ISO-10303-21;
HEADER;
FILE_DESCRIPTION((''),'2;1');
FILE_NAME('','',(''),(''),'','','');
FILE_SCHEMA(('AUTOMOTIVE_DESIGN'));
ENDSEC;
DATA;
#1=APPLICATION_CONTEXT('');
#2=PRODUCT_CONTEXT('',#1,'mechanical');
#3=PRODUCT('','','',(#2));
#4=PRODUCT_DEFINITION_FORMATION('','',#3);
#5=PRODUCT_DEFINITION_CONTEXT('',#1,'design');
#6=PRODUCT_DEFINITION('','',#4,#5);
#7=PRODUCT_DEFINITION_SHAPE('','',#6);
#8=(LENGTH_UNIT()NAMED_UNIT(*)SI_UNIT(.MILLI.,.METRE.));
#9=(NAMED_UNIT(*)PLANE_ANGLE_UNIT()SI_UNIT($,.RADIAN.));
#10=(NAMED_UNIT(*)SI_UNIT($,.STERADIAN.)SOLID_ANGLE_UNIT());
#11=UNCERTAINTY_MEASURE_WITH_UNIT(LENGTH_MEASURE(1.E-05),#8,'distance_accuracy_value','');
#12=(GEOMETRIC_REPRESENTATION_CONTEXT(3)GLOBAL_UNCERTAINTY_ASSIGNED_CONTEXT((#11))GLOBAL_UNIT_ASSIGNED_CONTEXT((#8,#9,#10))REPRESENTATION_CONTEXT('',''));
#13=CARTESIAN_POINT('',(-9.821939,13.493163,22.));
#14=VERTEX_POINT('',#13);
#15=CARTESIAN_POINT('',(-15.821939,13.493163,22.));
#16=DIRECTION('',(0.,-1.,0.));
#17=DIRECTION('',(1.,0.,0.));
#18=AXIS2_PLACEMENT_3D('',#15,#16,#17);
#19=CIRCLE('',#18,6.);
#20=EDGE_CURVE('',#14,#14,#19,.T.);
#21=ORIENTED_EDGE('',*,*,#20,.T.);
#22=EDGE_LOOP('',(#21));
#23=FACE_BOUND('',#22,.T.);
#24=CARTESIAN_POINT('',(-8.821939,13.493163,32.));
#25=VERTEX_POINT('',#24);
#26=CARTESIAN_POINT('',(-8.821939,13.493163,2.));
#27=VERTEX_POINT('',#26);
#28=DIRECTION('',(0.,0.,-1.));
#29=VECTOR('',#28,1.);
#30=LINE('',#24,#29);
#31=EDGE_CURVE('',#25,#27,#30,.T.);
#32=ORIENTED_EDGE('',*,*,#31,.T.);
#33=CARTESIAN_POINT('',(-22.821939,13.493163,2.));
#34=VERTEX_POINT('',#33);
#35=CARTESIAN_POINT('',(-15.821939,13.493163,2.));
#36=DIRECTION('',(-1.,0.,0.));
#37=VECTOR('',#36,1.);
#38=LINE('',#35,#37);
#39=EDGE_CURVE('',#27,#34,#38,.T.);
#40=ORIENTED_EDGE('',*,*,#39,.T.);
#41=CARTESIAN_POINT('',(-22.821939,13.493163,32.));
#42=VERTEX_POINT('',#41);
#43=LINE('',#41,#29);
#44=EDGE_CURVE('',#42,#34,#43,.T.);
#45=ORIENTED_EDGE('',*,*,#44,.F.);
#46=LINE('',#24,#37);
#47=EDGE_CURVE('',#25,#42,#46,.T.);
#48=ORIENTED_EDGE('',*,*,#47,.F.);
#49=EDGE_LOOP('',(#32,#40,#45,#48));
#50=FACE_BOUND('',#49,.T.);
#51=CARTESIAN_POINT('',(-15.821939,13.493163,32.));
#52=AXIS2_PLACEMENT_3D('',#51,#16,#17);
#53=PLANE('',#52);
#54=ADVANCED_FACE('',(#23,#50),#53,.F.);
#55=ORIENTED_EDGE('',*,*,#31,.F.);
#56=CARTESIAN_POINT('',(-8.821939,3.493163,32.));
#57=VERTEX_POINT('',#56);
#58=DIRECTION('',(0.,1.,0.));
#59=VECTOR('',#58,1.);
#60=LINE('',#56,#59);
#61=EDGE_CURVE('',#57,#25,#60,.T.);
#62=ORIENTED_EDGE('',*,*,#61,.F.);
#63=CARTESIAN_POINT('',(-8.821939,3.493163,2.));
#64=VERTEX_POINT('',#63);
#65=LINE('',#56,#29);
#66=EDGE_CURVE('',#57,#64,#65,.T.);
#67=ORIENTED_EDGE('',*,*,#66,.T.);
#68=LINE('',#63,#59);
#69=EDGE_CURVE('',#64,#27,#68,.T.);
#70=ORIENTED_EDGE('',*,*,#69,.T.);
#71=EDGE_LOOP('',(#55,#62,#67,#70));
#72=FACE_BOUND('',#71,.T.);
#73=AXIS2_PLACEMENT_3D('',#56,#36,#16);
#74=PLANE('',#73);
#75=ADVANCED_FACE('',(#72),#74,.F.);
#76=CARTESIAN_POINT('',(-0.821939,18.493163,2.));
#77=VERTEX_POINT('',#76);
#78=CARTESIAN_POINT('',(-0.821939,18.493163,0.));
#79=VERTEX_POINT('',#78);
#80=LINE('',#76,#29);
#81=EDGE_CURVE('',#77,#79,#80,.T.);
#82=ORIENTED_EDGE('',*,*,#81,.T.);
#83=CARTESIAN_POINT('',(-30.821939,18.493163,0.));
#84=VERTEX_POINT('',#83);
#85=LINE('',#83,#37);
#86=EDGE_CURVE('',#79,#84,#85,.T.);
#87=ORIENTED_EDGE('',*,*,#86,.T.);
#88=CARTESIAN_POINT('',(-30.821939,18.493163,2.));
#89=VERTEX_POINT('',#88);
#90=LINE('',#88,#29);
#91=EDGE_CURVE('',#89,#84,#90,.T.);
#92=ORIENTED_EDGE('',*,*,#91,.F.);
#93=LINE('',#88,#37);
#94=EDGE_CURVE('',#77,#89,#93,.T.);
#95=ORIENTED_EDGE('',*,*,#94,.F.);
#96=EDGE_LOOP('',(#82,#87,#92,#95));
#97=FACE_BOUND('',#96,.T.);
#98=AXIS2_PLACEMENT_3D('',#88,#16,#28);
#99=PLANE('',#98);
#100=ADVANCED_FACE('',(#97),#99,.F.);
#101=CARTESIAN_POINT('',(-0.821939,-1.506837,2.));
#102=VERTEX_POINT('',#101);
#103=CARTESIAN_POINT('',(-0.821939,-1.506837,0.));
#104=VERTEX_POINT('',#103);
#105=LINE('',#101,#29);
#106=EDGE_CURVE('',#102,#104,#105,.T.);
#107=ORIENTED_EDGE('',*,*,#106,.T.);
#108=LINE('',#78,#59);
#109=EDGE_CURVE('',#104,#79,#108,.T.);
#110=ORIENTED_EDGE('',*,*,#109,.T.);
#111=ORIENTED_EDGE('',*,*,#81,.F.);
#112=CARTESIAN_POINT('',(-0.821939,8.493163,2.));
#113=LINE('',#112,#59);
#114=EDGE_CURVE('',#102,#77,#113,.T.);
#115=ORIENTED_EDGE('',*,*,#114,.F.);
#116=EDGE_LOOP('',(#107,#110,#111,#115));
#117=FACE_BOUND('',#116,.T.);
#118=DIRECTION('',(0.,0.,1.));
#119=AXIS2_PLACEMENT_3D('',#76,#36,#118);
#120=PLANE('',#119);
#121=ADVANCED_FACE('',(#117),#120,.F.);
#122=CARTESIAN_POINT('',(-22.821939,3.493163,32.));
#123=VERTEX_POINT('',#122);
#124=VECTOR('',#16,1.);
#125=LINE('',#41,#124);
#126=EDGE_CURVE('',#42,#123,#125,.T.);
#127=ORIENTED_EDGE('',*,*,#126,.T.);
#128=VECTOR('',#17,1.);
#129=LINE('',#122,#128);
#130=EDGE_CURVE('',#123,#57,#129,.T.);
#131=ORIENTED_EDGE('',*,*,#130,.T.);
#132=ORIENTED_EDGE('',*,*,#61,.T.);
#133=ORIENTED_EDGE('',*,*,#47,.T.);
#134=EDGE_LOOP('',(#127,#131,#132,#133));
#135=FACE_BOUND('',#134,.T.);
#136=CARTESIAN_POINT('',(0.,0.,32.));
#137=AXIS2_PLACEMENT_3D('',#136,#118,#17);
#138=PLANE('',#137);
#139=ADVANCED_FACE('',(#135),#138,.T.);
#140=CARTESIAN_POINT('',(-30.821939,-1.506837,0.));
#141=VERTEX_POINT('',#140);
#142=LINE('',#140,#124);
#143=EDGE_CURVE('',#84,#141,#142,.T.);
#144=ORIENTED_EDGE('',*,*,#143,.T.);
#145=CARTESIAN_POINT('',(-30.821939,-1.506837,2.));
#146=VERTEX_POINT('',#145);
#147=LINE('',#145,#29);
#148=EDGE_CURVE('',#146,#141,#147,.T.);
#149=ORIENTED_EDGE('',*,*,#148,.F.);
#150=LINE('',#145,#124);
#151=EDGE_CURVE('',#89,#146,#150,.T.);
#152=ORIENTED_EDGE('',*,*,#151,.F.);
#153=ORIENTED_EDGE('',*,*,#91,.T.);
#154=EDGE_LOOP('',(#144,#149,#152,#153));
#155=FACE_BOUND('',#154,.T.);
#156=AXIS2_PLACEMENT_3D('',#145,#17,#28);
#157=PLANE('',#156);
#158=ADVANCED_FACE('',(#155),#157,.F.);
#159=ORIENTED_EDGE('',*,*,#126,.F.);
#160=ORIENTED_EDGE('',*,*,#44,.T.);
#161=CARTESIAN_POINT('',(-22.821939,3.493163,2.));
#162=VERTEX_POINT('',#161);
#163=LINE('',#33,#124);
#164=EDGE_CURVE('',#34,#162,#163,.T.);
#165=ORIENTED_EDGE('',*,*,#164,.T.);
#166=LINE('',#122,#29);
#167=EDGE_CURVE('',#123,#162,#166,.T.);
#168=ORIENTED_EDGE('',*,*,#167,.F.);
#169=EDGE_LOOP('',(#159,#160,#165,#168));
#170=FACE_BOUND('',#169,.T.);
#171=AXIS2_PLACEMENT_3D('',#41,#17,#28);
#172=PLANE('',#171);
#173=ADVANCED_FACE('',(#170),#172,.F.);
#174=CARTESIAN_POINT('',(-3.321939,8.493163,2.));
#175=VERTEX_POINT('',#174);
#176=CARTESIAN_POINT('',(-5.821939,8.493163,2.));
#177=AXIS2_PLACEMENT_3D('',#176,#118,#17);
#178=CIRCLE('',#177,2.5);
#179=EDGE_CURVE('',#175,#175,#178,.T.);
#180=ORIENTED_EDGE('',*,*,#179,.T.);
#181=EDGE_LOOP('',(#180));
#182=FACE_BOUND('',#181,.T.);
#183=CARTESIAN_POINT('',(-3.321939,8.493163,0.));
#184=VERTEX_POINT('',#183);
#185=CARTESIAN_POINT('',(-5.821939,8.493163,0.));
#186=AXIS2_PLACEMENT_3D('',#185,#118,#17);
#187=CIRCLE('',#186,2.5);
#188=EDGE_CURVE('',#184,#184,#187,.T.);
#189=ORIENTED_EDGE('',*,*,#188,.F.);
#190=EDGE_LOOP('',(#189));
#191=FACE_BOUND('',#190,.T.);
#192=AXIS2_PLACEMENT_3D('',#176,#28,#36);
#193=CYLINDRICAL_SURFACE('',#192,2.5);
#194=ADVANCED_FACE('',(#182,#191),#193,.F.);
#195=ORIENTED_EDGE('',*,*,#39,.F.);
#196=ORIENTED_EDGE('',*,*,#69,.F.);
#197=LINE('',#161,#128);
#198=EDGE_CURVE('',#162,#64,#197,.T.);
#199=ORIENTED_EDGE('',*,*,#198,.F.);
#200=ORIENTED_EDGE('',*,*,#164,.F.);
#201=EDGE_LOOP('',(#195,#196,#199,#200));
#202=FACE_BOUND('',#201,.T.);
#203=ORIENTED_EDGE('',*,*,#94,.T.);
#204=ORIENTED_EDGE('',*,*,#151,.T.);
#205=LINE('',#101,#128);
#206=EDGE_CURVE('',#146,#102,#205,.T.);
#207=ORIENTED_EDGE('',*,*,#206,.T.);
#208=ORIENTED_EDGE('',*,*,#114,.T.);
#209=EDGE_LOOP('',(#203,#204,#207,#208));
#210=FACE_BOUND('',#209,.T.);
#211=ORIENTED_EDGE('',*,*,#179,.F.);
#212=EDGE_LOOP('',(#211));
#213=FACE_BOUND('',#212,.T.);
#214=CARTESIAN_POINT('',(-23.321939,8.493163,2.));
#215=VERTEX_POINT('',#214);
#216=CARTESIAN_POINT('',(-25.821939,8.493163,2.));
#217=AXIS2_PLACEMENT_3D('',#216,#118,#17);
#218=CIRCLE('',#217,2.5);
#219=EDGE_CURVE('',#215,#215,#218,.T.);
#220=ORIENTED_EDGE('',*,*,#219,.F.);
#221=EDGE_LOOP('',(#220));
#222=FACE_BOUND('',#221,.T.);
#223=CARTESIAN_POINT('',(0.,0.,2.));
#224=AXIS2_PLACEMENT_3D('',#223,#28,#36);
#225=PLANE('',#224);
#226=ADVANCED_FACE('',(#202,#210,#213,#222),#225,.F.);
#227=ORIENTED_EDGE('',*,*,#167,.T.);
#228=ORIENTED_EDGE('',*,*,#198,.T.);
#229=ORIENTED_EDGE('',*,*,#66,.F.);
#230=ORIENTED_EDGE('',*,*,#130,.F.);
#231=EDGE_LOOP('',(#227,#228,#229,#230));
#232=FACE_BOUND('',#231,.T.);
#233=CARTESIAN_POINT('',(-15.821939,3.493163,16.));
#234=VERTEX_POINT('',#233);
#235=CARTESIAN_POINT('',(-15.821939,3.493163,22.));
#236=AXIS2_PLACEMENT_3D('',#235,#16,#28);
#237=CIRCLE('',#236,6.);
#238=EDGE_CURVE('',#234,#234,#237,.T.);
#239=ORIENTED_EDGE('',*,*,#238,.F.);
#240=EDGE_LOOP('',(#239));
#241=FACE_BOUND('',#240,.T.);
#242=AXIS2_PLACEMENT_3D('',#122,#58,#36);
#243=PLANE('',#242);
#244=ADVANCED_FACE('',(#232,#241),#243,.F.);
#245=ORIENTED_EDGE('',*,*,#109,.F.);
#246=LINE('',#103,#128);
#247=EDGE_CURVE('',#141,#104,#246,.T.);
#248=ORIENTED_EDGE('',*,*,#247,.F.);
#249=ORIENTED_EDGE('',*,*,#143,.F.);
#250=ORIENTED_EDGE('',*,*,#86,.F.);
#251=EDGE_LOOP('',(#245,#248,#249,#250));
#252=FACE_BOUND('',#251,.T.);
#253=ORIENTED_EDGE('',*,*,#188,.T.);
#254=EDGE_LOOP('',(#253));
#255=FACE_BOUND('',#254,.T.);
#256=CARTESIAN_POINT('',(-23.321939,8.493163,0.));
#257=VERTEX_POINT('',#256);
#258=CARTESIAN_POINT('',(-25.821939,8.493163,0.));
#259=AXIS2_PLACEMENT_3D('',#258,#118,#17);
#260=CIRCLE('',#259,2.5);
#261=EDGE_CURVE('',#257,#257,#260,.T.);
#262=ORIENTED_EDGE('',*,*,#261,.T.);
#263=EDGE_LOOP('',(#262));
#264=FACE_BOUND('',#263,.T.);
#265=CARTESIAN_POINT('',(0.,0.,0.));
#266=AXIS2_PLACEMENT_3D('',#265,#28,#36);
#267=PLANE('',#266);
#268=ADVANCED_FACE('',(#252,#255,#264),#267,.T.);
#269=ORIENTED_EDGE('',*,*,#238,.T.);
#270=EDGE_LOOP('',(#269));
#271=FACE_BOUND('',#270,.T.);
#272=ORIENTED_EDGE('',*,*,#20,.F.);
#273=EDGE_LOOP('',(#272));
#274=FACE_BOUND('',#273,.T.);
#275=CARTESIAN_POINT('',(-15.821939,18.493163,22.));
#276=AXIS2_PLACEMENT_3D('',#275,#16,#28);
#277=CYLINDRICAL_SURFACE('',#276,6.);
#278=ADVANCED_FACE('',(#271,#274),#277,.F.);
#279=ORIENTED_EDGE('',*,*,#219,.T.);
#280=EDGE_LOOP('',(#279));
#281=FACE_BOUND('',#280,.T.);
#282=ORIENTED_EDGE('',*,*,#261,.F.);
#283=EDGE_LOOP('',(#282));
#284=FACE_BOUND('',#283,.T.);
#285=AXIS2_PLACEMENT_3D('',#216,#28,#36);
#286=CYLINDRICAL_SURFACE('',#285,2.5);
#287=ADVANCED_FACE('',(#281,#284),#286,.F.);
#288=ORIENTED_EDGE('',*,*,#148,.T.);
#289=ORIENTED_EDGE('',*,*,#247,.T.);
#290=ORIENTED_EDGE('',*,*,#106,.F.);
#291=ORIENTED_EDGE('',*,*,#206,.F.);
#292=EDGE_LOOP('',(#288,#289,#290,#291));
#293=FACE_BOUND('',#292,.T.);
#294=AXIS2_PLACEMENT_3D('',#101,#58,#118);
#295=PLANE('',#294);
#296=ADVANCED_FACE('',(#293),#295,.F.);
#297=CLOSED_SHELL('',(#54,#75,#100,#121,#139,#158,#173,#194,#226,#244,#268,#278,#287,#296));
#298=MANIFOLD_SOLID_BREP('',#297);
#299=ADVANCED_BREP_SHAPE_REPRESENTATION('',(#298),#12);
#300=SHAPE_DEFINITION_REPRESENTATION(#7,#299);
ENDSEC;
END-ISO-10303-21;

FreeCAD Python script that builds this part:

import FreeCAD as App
import Part
import Sketcher

V = App.Vector


def add_polygon(sketch, points):
    """Adds a closed chain of lines whose ends are joined by coincident constraints."""
    first, n = sketch.GeometryCount, len(points)
    for a, b in zip(points, points[1:] + points[:1]):
        sketch.addGeometry(Part.LineSegment(App.Vector(*a, 0), App.Vector(*b, 0)), False)
    for i in range(n):
        sketch.addConstraint(Sketcher.Constraint("Coincident", first + i, 2, first + (i + 1) % n, 1))

doc = App.newDocument("Part")
params = doc.addObject("Spreadsheet::Sheet", "Params")
for row, (alias, value) in enumerate([
    ("sketch1_diameter", "5 mm"),
    ("sketch1_width", "30 mm"),
    ("sketch1_height", "20 mm"),
    ("pad1_length", "2 mm"),
    ("sketch2_width", "14 mm"),
    ("sketch2_height", "10 mm"),
    ("pad2_length", "30 mm"),
    ("sketch3_diameter", "12 mm"),
    ("pocket1_length", "15 mm"),
], start=1):
    params.set(f"A{row}", alias)
    params.set(f"B{row}", "=" + value)
    params.setAlias(f"B{row}", alias)

body = doc.addObject("PartDesign::Body", "Body")

# Sketch on XY plane
sketch1 = doc.addObject("Sketcher::SketchObject", "Sketch")
body.addObject(sketch1)
sketch1.AttachmentSupport = (doc.XY_Plane, [""])
sketch1.MapMode = "FlatFace"
add_polygon(sketch1, [(-0.821939, 18.493163), (-30.821939, 18.493163), (-30.821939, -1.506837), (-0.821939, -1.506837)])  # lines 0-3
sketch1.addGeometry(Part.Circle(V(-5.821939, 8.493163, 0), V(0, 0, 1), 2.5), False)  # 4
sketch1.addGeometry(Part.Circle(V(-25.821939, 8.493163, 0), V(0, 0, 1), 2.5), False)  # 5
sketch1.addConstraint([
    Sketcher.Constraint("Horizontal", 0),
    Sketcher.Constraint("Vertical", 1),
    Sketcher.Constraint("Horizontal", 2),
    Sketcher.Constraint("Vertical", 3),
    Sketcher.Constraint("Equal", 4, 5),
    Sketcher.Constraint("Horizontal", 4, 3, 5, 3),
    Sketcher.Constraint("Diameter", 4, 5.0),
    Sketcher.Constraint("DistanceX", 0, 2, 0, 1, 30.0),
    Sketcher.Constraint("DistanceY", 1, 2, 1, 1, 20.0),
    Sketcher.Constraint("DistanceX", 5, 3, 4, 3, 20.0),
    Sketcher.Constraint("DistanceX", 0, 2, 5, 3, 5.0),
    Sketcher.Constraint("DistanceY", 5, 3, 0, 2, 10.0),
    Sketcher.Constraint("DistanceX", 4, 3, -1, 1, 5.821939),
    Sketcher.Constraint("DistanceY", -1, 1, 4, 3, 8.493163),
])
sketch1.setExpression("Constraints[10]", "Params.sketch1_diameter")
sketch1.setExpression("Constraints[11]", "Params.sketch1_width")
sketch1.setExpression("Constraints[12]", "Params.sketch1_height")
pad1 = doc.addObject("PartDesign::Pad", "Pad")
body.addObject(pad1)
pad1.Profile = sketch1
pad1.setExpression("Length", "Params.pad1_length")

# Sketch on XY plane
sketch2 = doc.addObject("Sketcher::SketchObject", "Sketch001")
body.addObject(sketch2)
sketch2.AttachmentSupport = (doc.XY_Plane, [""])
sketch2.MapMode = "FlatFace"
sketch2.AttachmentOffset = App.Placement(V(0, 0, 2), App.Rotation())
add_polygon(sketch2, [(-22.821939, 3.493163), (-8.821939, 3.493163), (-8.821939, 13.493163), (-22.821939, 13.493163)])  # lines 0-3
sketch2.addConstraint([
    Sketcher.Constraint("Horizontal", 0),
    Sketcher.Constraint("Vertical", 1),
    Sketcher.Constraint("Horizontal", 2),
    Sketcher.Constraint("Vertical", 3),
    Sketcher.Constraint("DistanceX", 0, 1, 0, 2, 14.0),
    Sketcher.Constraint("DistanceY", 1, 1, 1, 2, 10.0),
    Sketcher.Constraint("DistanceX", 0, 2, -1, 1, 8.821939),
    Sketcher.Constraint("DistanceY", -1, 1, 0, 2, 3.493163),
])
sketch2.setExpression("Constraints[8]", "Params.sketch2_width")
sketch2.setExpression("Constraints[9]", "Params.sketch2_height")
pad2 = doc.addObject("PartDesign::Pad", "Pad001")
body.addObject(pad2)
pad2.Profile = sketch2
pad2.setExpression("Length", "Params.pad2_length")

# Sketch on XZ plane
sketch3 = doc.addObject("Sketcher::SketchObject", "Sketch002")
body.addObject(sketch3)
sketch3.AttachmentSupport = (doc.XZ_Plane, [""])
sketch3.MapMode = "FlatFace"
sketch3.AttachmentOffset = App.Placement(V(0, 0, -3.493163), App.Rotation())
sketch3.addGeometry(Part.Circle(V(-15.821939, 22, 0), V(0, 0, 1), 6), False)
sketch3.addConstraint([
    Sketcher.Constraint("Diameter", 0, 12.0),
    Sketcher.Constraint("DistanceY", -1, 1, 0, 3, 22.0),
    Sketcher.Constraint("DistanceX", 0, 3, -1, 1, 15.821939),
])
sketch3.setExpression("Constraints[0]", "Params.sketch3_diameter")
pocket1 = doc.addObject("PartDesign::Pocket", "Pocket")
body.addObject(pocket1)
pocket1.Profile = sketch3
pocket1.setExpression("Length", "Params.pocket1_length")

doc.recompute()
